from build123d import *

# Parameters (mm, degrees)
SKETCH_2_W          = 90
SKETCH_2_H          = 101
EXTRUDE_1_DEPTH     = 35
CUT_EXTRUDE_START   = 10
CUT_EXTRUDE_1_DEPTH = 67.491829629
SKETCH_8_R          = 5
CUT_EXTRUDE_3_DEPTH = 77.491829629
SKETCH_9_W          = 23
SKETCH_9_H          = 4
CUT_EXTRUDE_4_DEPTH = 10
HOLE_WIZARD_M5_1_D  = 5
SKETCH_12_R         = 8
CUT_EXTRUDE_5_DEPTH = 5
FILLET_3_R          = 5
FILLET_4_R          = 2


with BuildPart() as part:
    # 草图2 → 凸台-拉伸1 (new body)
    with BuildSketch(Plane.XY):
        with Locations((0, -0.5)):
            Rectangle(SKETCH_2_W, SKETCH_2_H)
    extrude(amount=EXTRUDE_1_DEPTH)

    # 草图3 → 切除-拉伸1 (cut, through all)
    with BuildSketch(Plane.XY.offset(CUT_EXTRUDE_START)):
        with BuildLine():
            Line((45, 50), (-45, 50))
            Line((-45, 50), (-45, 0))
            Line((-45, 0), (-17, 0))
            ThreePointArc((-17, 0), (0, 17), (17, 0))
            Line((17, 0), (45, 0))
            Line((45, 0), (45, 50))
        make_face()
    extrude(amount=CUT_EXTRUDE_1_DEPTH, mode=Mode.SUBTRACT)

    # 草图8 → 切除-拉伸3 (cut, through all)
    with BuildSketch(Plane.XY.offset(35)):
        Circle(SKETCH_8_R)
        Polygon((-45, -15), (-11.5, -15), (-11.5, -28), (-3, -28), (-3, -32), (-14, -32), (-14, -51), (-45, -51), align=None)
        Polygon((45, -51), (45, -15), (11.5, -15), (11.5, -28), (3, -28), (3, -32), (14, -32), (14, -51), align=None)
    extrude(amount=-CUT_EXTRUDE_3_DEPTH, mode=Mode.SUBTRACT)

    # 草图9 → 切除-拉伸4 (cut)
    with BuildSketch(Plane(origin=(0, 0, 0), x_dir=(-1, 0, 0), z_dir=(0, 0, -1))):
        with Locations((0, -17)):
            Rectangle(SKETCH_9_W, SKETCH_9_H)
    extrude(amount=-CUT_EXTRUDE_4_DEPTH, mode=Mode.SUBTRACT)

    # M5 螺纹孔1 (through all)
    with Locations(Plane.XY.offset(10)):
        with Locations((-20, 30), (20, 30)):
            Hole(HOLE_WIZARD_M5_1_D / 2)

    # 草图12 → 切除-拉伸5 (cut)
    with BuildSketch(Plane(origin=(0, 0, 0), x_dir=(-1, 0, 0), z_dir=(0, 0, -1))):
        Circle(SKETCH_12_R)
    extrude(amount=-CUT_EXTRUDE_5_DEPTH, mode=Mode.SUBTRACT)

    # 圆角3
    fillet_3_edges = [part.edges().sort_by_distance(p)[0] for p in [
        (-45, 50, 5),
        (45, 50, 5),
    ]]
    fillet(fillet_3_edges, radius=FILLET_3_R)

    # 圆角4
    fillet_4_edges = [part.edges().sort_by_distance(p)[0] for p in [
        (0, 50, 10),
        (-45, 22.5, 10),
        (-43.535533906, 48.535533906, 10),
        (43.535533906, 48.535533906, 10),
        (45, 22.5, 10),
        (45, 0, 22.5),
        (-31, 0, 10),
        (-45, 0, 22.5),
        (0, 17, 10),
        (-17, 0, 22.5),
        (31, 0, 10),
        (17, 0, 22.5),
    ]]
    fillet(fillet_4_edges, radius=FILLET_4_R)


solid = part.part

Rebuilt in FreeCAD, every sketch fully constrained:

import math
import FreeCAD as App
import Part
import Sketcher

V = App.Vector
Q = App.Units.Quantity


def edges_at(feature, points):
    """Names of the edges that pass closest to the given points."""
    edges = feature.Shape.Edges
    near = lambda p: min(range(len(edges)), key=lambda i: edges[i].distToShape(Part.Vertex(*p))[0])
    return sorted({f"Edge{near(p) + 1}" for p in points})


def add_polygon(sketch, points):
    """Adds a closed chain of lines whose ends are joined by coincident constraints."""
    first, n = sketch.GeometryCount, len(points)
    for a, b in zip(points, points[1:] + points[:1]):
        sketch.addGeometry(Part.LineSegment(App.Vector(*a, 0), App.Vector(*b, 0)), False)
    for i in range(n):
        sketch.addConstraint(Sketcher.Constraint("Coincident", first + i, 2, first + (i + 1) % n, 1))

doc = App.newDocument("Part")
body = doc.addObject("PartDesign::Body", "Body")

# Sketch on XY plane
sketch1 = doc.addObject("Sketcher::SketchObject", "Sketch")
body.addObject(sketch1)
sketch1.AttachmentSupport = (doc.XY_Plane, [""])
sketch1.MapMode = "FlatFace"
add_polygon(sketch1, [(-45, 50), (-45, -51), (45, -51), (45, 50)])  # lines 0-3
sketch1.addConstraint(Sketcher.Constraint("Vertical", 0))
sketch1.addConstraint(Sketcher.Constraint("Horizontal", 1))
sketch1.addConstraint(Sketcher.Constraint("Vertical", 2))
sketch1.addConstraint(Sketcher.Constraint("Horizontal", 3))
sketch1.addConstraint(Sketcher.Constraint("DistanceX", 1, 1, 1, 2, Q("90 mm")))
sketch1.addConstraint(Sketcher.Constraint("DistanceY", 0, 2, 0, 1, Q("101 mm")))
sketch1.addConstraint(Sketcher.Constraint("DistanceX", 0, 2, -1, 1, Q("45 mm")))
sketch1.addConstraint(Sketcher.Constraint("DistanceY", 0, 2, -1, 1, Q("51 mm")))
pad1 = doc.addObject("PartDesign::Pad", "Pad")
body.addObject(pad1)
pad1.Profile = sketch1
pad1.Length = 35

# Sketch on XY plane
sketch2 = doc.addObject("Sketcher::SketchObject", "Sketch001")
body.addObject(sketch2)
sketch2.AttachmentSupport = (doc.XY_Plane, [""])
sketch2.MapMode = "FlatFace"
sketch2.AttachmentOffset = App.Placement(V(0, 0, 10), App.Rotation())
sketch2.addGeometry(Part.LineSegment(V(45, 50, 0), V(-45, 50, 0)), False)
sketch2.addGeometry(Part.LineSegment(V(-45, 50, 0), V(-45, 0, 0)), False)
sketch2.addGeometry(Part.LineSegment(V(-45, 0, 0), V(-17, 0, 0)), False)
sketch2.addGeometry(Part.ArcOfCircle(Part.Circle(V(0, 0, 0), V(0, 0, 1), 17), math.radians(0), math.radians(180)), False)
sketch2.addGeometry(Part.LineSegment(V(17, 0, 0), V(45, 0, 0)), False)
sketch2.addGeometry(Part.LineSegment(V(45, 0, 0), V(45, 50, 0)), False)
sketch2.addConstraint(Sketcher.Constraint("Coincident", 0, 2, 1, 1))
sketch2.addConstraint(Sketcher.Constraint("Coincident", 1, 2, 2, 1))
sketch2.addConstraint(Sketcher.Constraint("Coincident", 2, 2, 3, 2))
sketch2.addConstraint(Sketcher.Constraint("Coincident", 3, 1, 4, 1))
sketch2.addConstraint(Sketcher.Constraint("Coincident", 4, 2, 5, 1))
sketch2.addConstraint(Sketcher.Constraint("Coincident", 5, 2, 0, 1))
sketch2.addConstraint(Sketcher.Constraint("Horizontal", 0))
sketch2.addConstraint(Sketcher.Constraint("Vertical", 1))
sketch2.addConstraint(Sketcher.Constraint("Horizontal", 2))
sketch2.addConstraint(Sketcher.Constraint("Horizontal", 4))
sketch2.addConstraint(Sketcher.Constraint("Vertical", 5))
sketch2.addConstraint(Sketcher.Constraint("Coincident", 3, 3, -1, 1))
sketch2.addConstraint(Sketcher.Constraint("Symmetric", 1, 2, 4, 2, -1, 1))
sketch2.addConstraint(Sketcher.Constraint("PointOnObject", 1, 2, -1))
sketch2.addConstraint(Sketcher.Constraint("Radius", 3, Q("17 mm")))
sketch2.addConstraint(Sketcher.Constraint("DistanceX", 0, 2, 0, 1, Q("90 mm")))
sketch2.addConstraint(Sketcher.Constraint("DistanceY", 1, 2, 1, 1, Q("50 mm")))
pocket1 = doc.addObject("PartDesign::Pocket", "Pocket")
body.addObject(pocket1)
pocket1.Profile = sketch2
pocket1.Type = "ThroughAll"
pocket1.Reversed = True

# Sketch on XY plane
sketch3 = doc.addObject("Sketcher::SketchObject", "Sketch002")
body.addObject(sketch3)
sketch3.AttachmentSupport = (doc.XY_Plane, [""])
sketch3.MapMode = "FlatFace"
sketch3.AttachmentOffset = App.Placement(V(0, 0, 35), App.Rotation())
sketch3.addGeometry(Part.Circle(V(0, 0, 0), V(0, 0, 1), 5), False)  # 0
add_polygon(sketch3, [(-11.5, -15), (-45, -15), (-45, -51), (-14, -51), (-14, -32), (-3, -32), (-3, -28), (-11.5, -28)])  # lines 1-8
add_polygon(sketch3, [(45, -51), (45, -15), (11.5, -15), (11.5, -28), (3, -28), (3, -32), (14, -32), (14, -51)])  # lines 9-16
sketch3.addConstraint(Sketcher.Constraint("Horizontal", 1))
sketch3.addConstraint(Sketcher.Constraint("Vertical", 2))
sketch3.addConstraint(Sketcher.Constraint("Horizontal", 3))
sketch3.addConstraint(Sketcher.Constraint("Vertical", 4))
sketch3.addConstraint(Sketcher.Constraint("Horizontal", 5))
sketch3.addConstraint(Sketcher.Constraint("Vertical", 6))
sketch3.addConstraint(Sketcher.Constraint("Horizontal", 7))
sketch3.addConstraint(Sketcher.Constraint("Vertical", 8))
sketch3.addConstraint(Sketcher.Constraint("Vertical", 9))
sketch3.addConstraint(Sketcher.Constraint("Horizontal", 10))
sketch3.addConstraint(Sketcher.Constraint("Vertical", 11))
sketch3.addConstraint(Sketcher.Constraint("Horizontal", 12))
sketch3.addConstraint(Sketcher.Constraint("Vertical", 13))
sketch3.addConstraint(Sketcher.Constraint("Horizontal", 14))
sketch3.addConstraint(Sketcher.Constraint("Vertical", 15))
sketch3.addConstraint(Sketcher.Constraint("Horizontal", 16))
sketch3.addConstraint(Sketcher.Constraint("Coincident", 0, 3, -1, 1))
sketch3.addConstraint(Sketcher.Constraint("Symmetric", 1, 2, 9, 2, -2))
sketch3.addConstraint(Sketcher.Constraint("Symmetric", 7, 2, 11, 2, -2))
sketch3.addConstraint(Sketcher.Constraint("Symmetric", 5, 2, 13, 2, -2))
sketch3.addConstraint(Sketcher.Constraint("Symmetric", 3, 2, 15, 2, -2))
sketch3.addConstraint(Sketcher.Constraint("Diameter", 0, Q("10 mm")))
sketch3.addConstraint(Sketcher.Constraint("DistanceX", 3, 1, 3, 2, Q("31 mm")))
sketch3.addConstraint(Sketcher.Constraint("DistanceX", 5, 1, 5, 2, Q("11 mm")))
sketch3.addConstraint(Sketcher.Constraint("DistanceY", 2, 2, 2, 1, Q("36 mm")))
sketch3.addConstraint(Sketcher.Constraint("DistanceY", 4, 1, 4, 2, Q("19 mm")))
sketch3.addConstraint(Sketcher.Constraint("DistanceY", 6, 1, 6, 2, Q("4 mm")))
sketch3.addConstraint(Sketcher.Constraint("DistanceX", 1, 2, 1, 1, Q("33.5 mm")))
sketch3.addConstraint(Sketcher.Constraint("DistanceX", 1, 2, -1, 1, Q("45 mm")))
sketch3.addConstraint(Sketcher.Constraint("DistanceY", 1, 2, -1, 1, Q("15 mm")))
pocket2 = doc.addObject("PartDesign::Pocket", "Pocket001")
body.addObject(pocket2)
pocket2.Profile = sketch3
pocket2.Type = "ThroughAll"

# Sketch on XY plane
sketch4 = doc.addObject("Sketcher::SketchObject", "Sketch003")
body.addObject(sketch4)
sketch4.AttachmentSupport = (doc.XY_Plane, [""])
sketch4.MapMode = "FlatFace"
add_polygon(sketch4, [(11.5, -15), (11.5, -19), (-11.5, -19), (-11.5, -15)])  # lines 0-3
sketch4.addConstraint(Sketcher.Constraint("Vertical", 0))
sketch4.addConstraint(Sketcher.Constraint("Horizontal", 1))
sketch4.addConstraint(Sketcher.Constraint("Vertical", 2))
sketch4.addConstraint(Sketcher.Constraint("Horizontal", 3))
sketch4.addConstraint(Sketcher.Constraint("DistanceX", 1, 2, 1, 1, Q("23 mm")))
sketch4.addConstraint(Sketcher.Constraint("DistanceY", 0, 2, 0, 1, Q("4 mm")))
sketch4.addConstraint(Sketcher.Constraint("DistanceY", 0, 2, -1, 1, Q("19 mm")))
sketch4.addConstraint(Sketcher.Constraint("DistanceX", -1, 1, 0, 2, Q("11.5 mm")))
pocket3 = doc.addObject("PartDesign::Pocket", "Pocket002")
body.addObject(pocket3)
pocket3.Profile = sketch4
pocket3.Length = 10
pocket3.Reversed = True

# Sketch on XY plane
sketch5 = doc.addObject("Sketcher::SketchObject", "Sketch004")
body.addObject(sketch5)
sketch5.AttachmentSupport = (doc.XY_Plane, [""])
sketch5.MapMode = "FlatFace"
sketch5.AttachmentOffset = App.Placement(V(0, 0, 10), App.Rotation())
sketch5.addGeometry(Part.Circle(V(-20, 30, 0), V(0, 0, 1), 2.5), False)
sketch5.addGeometry(Part.Circle(V(20, 30, 0), V(0, 0, 1), 2.5), False)
sketch5.addConstraint(Sketcher.Constraint("Equal", 0, 1))
sketch5.addConstraint(Sketcher.Constraint("Symmetric", 0, 3, 1, 3, -2))
sketch5.addConstraint(Sketcher.Constraint("Diameter", 0, Q("5 mm")))
sketch5.addConstraint(Sketcher.Constraint("DistanceX", 0, 3, -1, 1, Q("20 mm")))
sketch5.addConstraint(Sketcher.Constraint("DistanceY", -1, 1, 0, 3, Q("30 mm")))
doc.recompute()
hole = doc.addObject("PartDesign::Hole", "Hole")
body.addObject(hole)
hole.Profile = sketch5
hole.ThreadType = "None"
hole.Diameter = 5
hole.DepthType = "ThroughAll"

# Sketch on XY plane
sketch6 = doc.addObject("Sketcher::SketchObject", "Sketch005")
body.addObject(sketch6)
sketch6.AttachmentSupport = (doc.XY_Plane, [""])
sketch6.MapMode = "FlatFace"
sketch6.addGeometry(Part.Circle(V(0, 0, 0), V(0, 0, 1), 8), False)
sketch6.addConstraint(Sketcher.Constraint("Coincident", 0, 3, -1, 1))
sketch6.addConstraint(Sketcher.Constraint("Diameter", 0, Q("16 mm")))
pocket4 = doc.addObject("PartDesign::Pocket", "Pocket003")
body.addObject(pocket4)
pocket4.Profile = sketch6
pocket4.Length = 5
pocket4.Reversed = True
doc.recompute()

fillet = doc.addObject("PartDesign::Fillet", "Fillet")
body.addObject(fillet)
fillet.Base = (pocket4, edges_at(pocket4, [(-45, 50, 5), (45, 50, 5)]))
fillet.Radius = 5
doc.recompute()

fillet2 = doc.addObject("PartDesign::Fillet", "Fillet001")
body.addObject(fillet2)
fillet2.Base = (fillet, edges_at(fillet, [
    (0, 50, 10),
    (-45, 22.5, 10),
    (-43.536, 48.536, 10),
    (43.536, 48.536, 10),
    (45, 22.5, 10),
    (45, 0, 22.5),
    (-31, 0, 10),
    (-45, 0, 22.5),
    (0, 17, 10),
    (-17, 0, 22.5),
    (31, 0, 10),
    (17, 0, 22.5),
]))
fillet2.Radius = 2

doc.recompute()
